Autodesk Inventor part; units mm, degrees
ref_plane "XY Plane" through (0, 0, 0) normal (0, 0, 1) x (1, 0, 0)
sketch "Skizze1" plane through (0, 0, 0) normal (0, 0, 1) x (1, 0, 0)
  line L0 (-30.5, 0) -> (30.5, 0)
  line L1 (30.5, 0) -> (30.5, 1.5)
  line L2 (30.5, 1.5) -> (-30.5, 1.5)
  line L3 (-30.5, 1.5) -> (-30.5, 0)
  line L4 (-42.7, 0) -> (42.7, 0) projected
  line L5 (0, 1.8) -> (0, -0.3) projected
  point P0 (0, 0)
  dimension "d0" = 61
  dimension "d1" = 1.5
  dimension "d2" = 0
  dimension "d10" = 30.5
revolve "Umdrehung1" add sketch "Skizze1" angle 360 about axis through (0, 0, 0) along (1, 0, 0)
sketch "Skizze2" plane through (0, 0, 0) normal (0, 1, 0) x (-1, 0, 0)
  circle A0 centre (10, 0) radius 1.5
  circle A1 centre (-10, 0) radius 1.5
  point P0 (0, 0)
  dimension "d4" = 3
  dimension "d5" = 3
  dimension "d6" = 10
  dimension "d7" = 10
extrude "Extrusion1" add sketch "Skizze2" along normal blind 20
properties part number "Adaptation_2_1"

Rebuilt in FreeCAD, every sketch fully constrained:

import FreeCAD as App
import Part
import Sketcher


def add_polygon(sketch, points):
    """Adds a closed chain of lines whose ends are joined by coincident constraints."""
    first, n = sketch.GeometryCount, len(points)
    for a, b in zip(points, points[1:] + points[:1]):
        sketch.addGeometry(Part.LineSegment(App.Vector(*a, 0), App.Vector(*b, 0)), False)
    for i in range(n):
        sketch.addConstraint(Sketcher.Constraint("Coincident", first + i, 2, first + (i + 1) % n, 1))

doc = App.newDocument("Part")
body = doc.addObject("PartDesign::Body", "Body")

sketch1 = doc.addObject("Sketcher::SketchObject", "Sketch")
body.addObject(sketch1)
sketch1.AttachmentSupport = (doc.XY_Plane, [""])
sketch1.MapMode = "FlatFace"
add_polygon(sketch1, [(-30.5, 1.5), (-30.5, 0), (30.5, 0), (30.5, 1.5)])
sketch1.addConstraint([
    Sketcher.Constraint("Vertical", 0),
    Sketcher.Constraint("Horizontal", 1),
    Sketcher.Constraint("Vertical", 2),
    Sketcher.Constraint("Horizontal", 3),
    Sketcher.Constraint("Symmetric", 0, 2, 1, 2, -1, 1),
    Sketcher.Constraint("DistanceX", 1, 1, 1, 2, 61.0),
    Sketcher.Constraint("DistanceY", 0, 2, 0, 1, 1.5),
])
revolution = doc.addObject("PartDesign::Revolution", "Revolution")
body.addObject(revolution)
revolution.Profile = sketch1
revolution.ReferenceAxis = (sketch1, ["H_Axis"])
revolution.Angle = 360

sketch2 = doc.addObject("Sketcher::SketchObject", "Sketch001")
body.addObject(sketch2)
sketch2.AttachmentSupport = (doc.XZ_Plane, [""])
sketch2.MapMode = "FlatFace"
sketch2.addGeometry([
    Part.Circle(App.Vector(-10, 0, 0), App.Vector(0, 0, 1), 1.5),
    Part.Circle(App.Vector(10, 0, 0), App.Vector(0, 0, 1), 1.5),
], False)
sketch2.addConstraint([
    Sketcher.Constraint("Equal", 0, 1),
    Sketcher.Constraint("Symmetric", 0, 3, 1, 3, -1, 1),
    Sketcher.Constraint("PointOnObject", 0, 3, -1),
    Sketcher.Constraint("Diameter", 0, 3.0),
    Sketcher.Constraint("DistanceX", 0, 3, -1, 1, 10.0),
])
pad1 = doc.addObject("PartDesign::Pad", "Pad")
body.addObject(pad1)
pad1.Profile = sketch2
pad1.Length = 20
pad1.Reversed = True

doc.recompute()
